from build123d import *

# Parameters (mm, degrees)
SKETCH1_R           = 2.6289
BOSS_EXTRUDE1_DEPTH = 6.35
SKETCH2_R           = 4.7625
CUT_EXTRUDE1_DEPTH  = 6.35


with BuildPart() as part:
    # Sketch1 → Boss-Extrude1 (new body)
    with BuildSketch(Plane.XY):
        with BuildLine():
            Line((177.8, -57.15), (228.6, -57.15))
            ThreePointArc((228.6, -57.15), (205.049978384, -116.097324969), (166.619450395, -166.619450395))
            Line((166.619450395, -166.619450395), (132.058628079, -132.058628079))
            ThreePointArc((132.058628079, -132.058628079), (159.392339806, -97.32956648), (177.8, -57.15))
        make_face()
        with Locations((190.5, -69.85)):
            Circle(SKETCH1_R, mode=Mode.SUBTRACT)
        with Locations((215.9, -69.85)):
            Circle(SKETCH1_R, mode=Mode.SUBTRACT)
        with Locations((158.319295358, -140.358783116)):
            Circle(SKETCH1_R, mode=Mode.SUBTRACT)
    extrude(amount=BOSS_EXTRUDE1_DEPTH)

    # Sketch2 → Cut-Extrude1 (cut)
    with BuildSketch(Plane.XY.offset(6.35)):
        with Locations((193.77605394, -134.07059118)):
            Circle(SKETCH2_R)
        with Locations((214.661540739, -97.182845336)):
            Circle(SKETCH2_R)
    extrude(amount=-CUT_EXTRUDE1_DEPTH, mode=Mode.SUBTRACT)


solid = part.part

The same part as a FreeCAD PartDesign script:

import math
import FreeCAD as App
import Part
import Sketcher
Q = App.Units.Quantity

doc = App.newDocument("Part")
body = doc.addObject("PartDesign::Body", "Body")

# Sketch on XY plane
sketch1 = doc.addObject("Sketcher::SketchObject", "Sketch")
body.addObject(sketch1)
sketch1.AttachmentSupport = (doc.XY_Plane, [""])
sketch1.MapMode = "FlatFace"
sketch1.addGeometry([
    Part.LineSegment(App.Vector(228.6, -57.1, 0), App.Vector(177.8, -57.1, 0)),  # 0
    Part.ArcOfCircle(Part.Circle(App.Vector(0, 0, 0), App.Vector(0, 0, 1), 186.8), math.radians(-45), math.radians(-18)),  # 1
    Part.LineSegment(App.Vector(132.1, -132.1, 0), App.Vector(166.6, -166.6, 0)),  # 2
    Part.ArcOfCircle(Part.Circle(App.Vector(0, 0, 0), App.Vector(0, 0, 1), 235.6), math.radians(-45), math.radians(-14)),  # 3
    Part.Circle(App.Vector(158.3, -140.4, 0), App.Vector(0, 0, 1), 2.6),  # 4
    Part.Circle(App.Vector(215.9, -69.8, 0), App.Vector(0, 0, 1), 2.6),  # 5
    Part.Circle(App.Vector(190.5, -69.8, 0), App.Vector(0, 0, 1), 2.6),  # 6
], False)
sketch1.addConstraint([
    Sketcher.Constraint("Coincident", 0, 2, 1, 2),
    Sketcher.Constraint("Coincident", 1, 1, 2, 1),
    Sketcher.Constraint("Coincident", 2, 2, 3, 1),
    Sketcher.Constraint("Coincident", 3, 2, 0, 1),
    Sketcher.Constraint("Horizontal", 0),
    Sketcher.Constraint("Coincident", 1, 3, -1, 1),
    Sketcher.Constraint("Coincident", 3, 3, -1, 1),
    Sketcher.Constraint("Equal", 4, 5),
    Sketcher.Constraint("Equal", 5, 6),
    Sketcher.Constraint("Horizontal", 5, 3, 6, 3),
    Sketcher.Constraint("DistanceX", 0, 2, 0, 1, Q("2 in")),
    Sketcher.Constraint("Diameter", 4, Q("0.207 in")),
    Sketcher.Constraint("DistanceX", -1, 1, 0, 2, Q("7 in")),
    Sketcher.Constraint("Angle", 2, Q("-45 deg")),
    Sketcher.Constraint("DistanceX", 6, 3, 5, 3, Q("1 in")),
    Sketcher.Constraint("DistanceX", -1, 1, 5, 3, Q("8.5 in")),
    Sketcher.Constraint("DistanceY", 6, 3, 0, 2, Q("0.5 in")),
    Sketcher.Constraint("DistanceY", 5, 3, -1, 1, Q("2.75 in")),
    Sketcher.Constraint("DistanceX", -1, 1, 1, 1, 132.058628),
    Sketcher.Constraint("DistanceX", -1, 1, 4, 3, 158.319295),
    Sketcher.Constraint("DistanceY", 4, 3, -1, 1, 140.358783),
])
pad1 = doc.addObject("PartDesign::Pad", "Pad")
body.addObject(pad1)
pad1.Profile = sketch1
pad1.Length = Q("0.25 in")

# Sketch on XY plane
sketch2 = doc.addObject("Sketcher::SketchObject", "Sketch001")
body.addObject(sketch2)
sketch2.AttachmentSupport = (doc.XY_Plane, [""])
sketch2.MapMode = "FlatFace"
sketch2.AttachmentOffset = App.Placement(App.Vector(0, 0, 0.25 * 25.4), App.Rotation())
sketch2.addGeometry([
    Part.Circle(App.Vector(193.8, -134.1, 0), App.Vector(0, 0, 1), 4.8),
    Part.Circle(App.Vector(214.7, -97.2, 0), App.Vector(0, 0, 1), 4.8),
], False)
sketch2.addConstraint([
    Sketcher.Constraint("Equal", 0, 1),
    Sketcher.Constraint("Diameter", 0, Q("0.375 in")),
    Sketcher.Constraint("DistanceY", 0, 3, -1, 1, 134.070591),
    Sketcher.Constraint("DistanceX", -1, 1, 1, 3, 214.661541),
    Sketcher.Constraint("DistanceX", -1, 1, 0, 3, 193.776054),
    Sketcher.Constraint("DistanceY", 1, 3, -1, 1, 97.182845),
])
pocket1 = doc.addObject("PartDesign::Pocket", "Pocket")
body.addObject(pocket1)
pocket1.Profile = sketch2
pocket1.Length = Q("0.25 in")

doc.recompute()
